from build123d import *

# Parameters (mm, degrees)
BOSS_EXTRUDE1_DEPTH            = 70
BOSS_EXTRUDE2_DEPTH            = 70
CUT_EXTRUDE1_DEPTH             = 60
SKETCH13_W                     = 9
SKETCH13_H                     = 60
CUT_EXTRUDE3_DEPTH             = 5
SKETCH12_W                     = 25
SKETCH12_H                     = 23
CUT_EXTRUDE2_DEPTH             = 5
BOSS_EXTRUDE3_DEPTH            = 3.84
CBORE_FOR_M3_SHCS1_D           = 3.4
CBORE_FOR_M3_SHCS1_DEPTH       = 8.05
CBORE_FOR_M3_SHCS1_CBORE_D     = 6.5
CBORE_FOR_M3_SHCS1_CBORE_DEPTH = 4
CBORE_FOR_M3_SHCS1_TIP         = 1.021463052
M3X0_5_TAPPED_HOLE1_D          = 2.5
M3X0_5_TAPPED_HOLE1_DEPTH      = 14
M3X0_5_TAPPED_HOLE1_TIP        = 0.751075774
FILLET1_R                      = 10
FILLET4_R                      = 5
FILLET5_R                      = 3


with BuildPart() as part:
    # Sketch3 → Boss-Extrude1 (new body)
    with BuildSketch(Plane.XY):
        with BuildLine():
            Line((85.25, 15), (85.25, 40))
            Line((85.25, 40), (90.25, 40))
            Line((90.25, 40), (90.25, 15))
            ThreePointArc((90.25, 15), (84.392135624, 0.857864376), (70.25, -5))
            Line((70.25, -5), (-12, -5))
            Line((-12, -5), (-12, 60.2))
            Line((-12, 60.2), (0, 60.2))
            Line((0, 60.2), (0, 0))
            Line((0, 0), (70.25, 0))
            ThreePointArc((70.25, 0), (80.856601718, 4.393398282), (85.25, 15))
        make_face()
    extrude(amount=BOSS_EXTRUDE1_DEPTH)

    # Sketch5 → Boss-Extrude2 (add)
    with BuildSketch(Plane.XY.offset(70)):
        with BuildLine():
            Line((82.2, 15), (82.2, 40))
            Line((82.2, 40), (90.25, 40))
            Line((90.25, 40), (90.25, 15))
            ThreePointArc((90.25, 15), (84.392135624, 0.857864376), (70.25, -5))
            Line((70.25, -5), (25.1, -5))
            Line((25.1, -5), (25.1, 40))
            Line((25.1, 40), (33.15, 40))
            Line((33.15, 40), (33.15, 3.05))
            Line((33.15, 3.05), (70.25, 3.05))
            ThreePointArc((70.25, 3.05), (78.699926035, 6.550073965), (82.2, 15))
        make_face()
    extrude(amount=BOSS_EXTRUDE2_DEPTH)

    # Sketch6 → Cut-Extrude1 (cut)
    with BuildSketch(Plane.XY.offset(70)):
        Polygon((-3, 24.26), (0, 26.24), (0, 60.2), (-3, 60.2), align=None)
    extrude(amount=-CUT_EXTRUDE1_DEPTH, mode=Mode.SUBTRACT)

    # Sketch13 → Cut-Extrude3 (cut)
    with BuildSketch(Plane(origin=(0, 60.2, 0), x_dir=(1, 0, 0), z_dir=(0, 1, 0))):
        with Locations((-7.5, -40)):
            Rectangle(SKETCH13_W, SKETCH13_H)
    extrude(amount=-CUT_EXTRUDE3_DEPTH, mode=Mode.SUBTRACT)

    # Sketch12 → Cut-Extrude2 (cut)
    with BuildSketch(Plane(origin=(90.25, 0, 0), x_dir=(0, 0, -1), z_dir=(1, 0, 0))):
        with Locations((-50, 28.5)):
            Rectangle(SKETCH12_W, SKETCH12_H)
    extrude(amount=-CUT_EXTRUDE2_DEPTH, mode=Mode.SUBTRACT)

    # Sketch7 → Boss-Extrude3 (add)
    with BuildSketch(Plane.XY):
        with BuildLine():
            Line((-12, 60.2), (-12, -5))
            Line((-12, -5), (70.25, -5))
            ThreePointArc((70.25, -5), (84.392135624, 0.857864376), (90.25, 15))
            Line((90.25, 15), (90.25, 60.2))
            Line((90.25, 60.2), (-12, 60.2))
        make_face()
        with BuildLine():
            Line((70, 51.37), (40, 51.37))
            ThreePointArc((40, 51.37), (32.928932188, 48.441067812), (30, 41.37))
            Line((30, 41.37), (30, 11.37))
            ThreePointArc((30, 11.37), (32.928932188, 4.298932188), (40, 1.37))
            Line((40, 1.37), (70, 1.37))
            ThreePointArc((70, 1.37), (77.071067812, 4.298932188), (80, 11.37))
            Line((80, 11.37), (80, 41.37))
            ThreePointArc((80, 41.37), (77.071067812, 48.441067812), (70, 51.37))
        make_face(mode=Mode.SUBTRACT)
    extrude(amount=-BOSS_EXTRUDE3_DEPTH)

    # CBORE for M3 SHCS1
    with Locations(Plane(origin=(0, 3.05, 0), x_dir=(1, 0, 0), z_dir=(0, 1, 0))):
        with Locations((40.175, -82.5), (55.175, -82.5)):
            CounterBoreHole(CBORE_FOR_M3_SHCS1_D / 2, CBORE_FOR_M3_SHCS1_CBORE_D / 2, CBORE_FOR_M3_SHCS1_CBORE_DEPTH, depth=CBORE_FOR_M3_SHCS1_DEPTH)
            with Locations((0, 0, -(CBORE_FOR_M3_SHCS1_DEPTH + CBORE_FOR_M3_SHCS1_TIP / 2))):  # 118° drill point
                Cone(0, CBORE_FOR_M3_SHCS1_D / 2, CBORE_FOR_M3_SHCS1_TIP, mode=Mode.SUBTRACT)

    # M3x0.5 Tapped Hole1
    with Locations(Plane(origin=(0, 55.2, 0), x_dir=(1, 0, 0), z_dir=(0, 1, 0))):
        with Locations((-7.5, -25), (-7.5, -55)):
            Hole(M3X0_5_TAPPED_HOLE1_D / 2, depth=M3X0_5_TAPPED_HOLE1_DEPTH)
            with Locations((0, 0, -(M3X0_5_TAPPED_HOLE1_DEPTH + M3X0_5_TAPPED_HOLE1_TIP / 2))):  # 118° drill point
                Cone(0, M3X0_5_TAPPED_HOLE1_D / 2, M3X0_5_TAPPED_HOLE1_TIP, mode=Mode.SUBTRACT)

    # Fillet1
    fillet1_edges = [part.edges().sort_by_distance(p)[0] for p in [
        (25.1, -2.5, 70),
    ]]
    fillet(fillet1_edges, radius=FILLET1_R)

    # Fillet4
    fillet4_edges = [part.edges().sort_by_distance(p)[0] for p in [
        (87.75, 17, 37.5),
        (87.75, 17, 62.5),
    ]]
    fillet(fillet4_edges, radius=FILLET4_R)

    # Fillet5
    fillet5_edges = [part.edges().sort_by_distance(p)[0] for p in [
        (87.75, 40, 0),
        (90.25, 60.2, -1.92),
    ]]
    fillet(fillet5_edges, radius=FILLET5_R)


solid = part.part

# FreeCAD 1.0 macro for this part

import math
import FreeCAD as App
import Part
import Sketcher


def edges_at(feature, points):
    """Names of the edges that pass closest to the given points."""
    edges = feature.Shape.Edges
    near = lambda p: min(range(len(edges)), key=lambda i: edges[i].distToShape(Part.Vertex(*p))[0])
    return sorted({f"Edge{near(p) + 1}" for p in points})


def add_polygon(sketch, points):
    """Adds a closed chain of lines whose ends are joined by coincident constraints."""
    first, n = sketch.GeometryCount, len(points)
    for a, b in zip(points, points[1:] + points[:1]):
        sketch.addGeometry(Part.LineSegment(App.Vector(*a, 0), App.Vector(*b, 0)), False)
    for i in range(n):
        sketch.addConstraint(Sketcher.Constraint("Coincident", first + i, 2, first + (i + 1) % n, 1))

doc = App.newDocument("Part")
body = doc.addObject("PartDesign::Body", "Body")

# Sketch on XY plane
sketch1 = body.newObject("Sketcher::SketchObject", "Sketch")
sketch1.AttachmentSupport = (doc.getObject("XY_Plane"), [""])
sketch1.MapMode = "FlatFace"
sketch1.addGeometry([
    Part.LineSegment(App.Vector(85.25, 40, 0), App.Vector(85.25, 15, 0)),  # 0
    Part.ArcOfCircle(Part.Circle(App.Vector(70.25, 15, 0), App.Vector(0, 0, 1), 15), math.radians(-90), math.radians(0)),  # 1
    Part.LineSegment(App.Vector(70.25, 0, 0), App.Vector(0, 0, 0)),  # 2
    Part.LineSegment(App.Vector(0, 0, 0), App.Vector(0, 60.2, 0)),  # 3
    Part.LineSegment(App.Vector(0, 60.2, 0), App.Vector(-12, 60.2, 0)),  # 4
    Part.LineSegment(App.Vector(-12, 60.2, 0), App.Vector(-12, -5, 0)),  # 5
    Part.LineSegment(App.Vector(-12, -5, 0), App.Vector(70.25, -5, 0)),  # 6
    Part.ArcOfCircle(Part.Circle(App.Vector(70.25, 15, 0), App.Vector(0, 0, 1), 20), math.radians(-90), math.radians(0)),  # 7
    Part.LineSegment(App.Vector(90.25, 15, 0), App.Vector(90.25, 40, 0)),  # 8
    Part.LineSegment(App.Vector(90.25, 40, 0), App.Vector(85.25, 40, 0)),  # 9
], False)
sketch1.addConstraint([
    Sketcher.Constraint("Tangent", 0, 2, 1, 2),
    Sketcher.Constraint("Tangent", 1, 1, 2, 1),
    Sketcher.Constraint("Coincident", 2, 2, 3, 1),
    Sketcher.Constraint("Coincident", 3, 2, 4, 1),
    Sketcher.Constraint("Coincident", 4, 2, 5, 1),
    Sketcher.Constraint("Coincident", 5, 2, 6, 1),
    Sketcher.Constraint("Tangent", 6, 2, 7, 1),
    Sketcher.Constraint("Tangent", 7, 2, 8, 1),
    Sketcher.Constraint("Coincident", 8, 2, 9, 1),
    Sketcher.Constraint("Coincident", 9, 2, 0, 1),
    Sketcher.Constraint("Vertical", 0),
    Sketcher.Constraint("Horizontal", 2),
    Sketcher.Constraint("Vertical", 3),
    Sketcher.Constraint("Horizontal", 4),
    Sketcher.Constraint("Vertical", 5),
    Sketcher.Constraint("Horizontal", 6),
    Sketcher.Constraint("Vertical", 8),
    Sketcher.Constraint("Horizontal", 9),
    Sketcher.Constraint("Coincident", 2, 2, -1, 1),
    Sketcher.Constraint("Coincident", 7, 3, 1, 3),
    Sketcher.Constraint("Radius", 1, 15.0),
    Sketcher.Constraint("Radius", 7, 20.0),
    Sketcher.Constraint("DistanceX", 4, 2, 4, 1, 12.0),
    Sketcher.Constraint("DistanceY", 0, 2, 0, 1, 25.0),
    Sketcher.Constraint("DistanceY", 3, 1, 3, 2, 60.2),
    Sketcher.Constraint("DistanceX", 2, 2, 2, 1, 70.25),
])
pad1 = body.newObject("PartDesign::Pad", "Pad")
pad1.Profile = sketch1
pad1.Length = 70

# Sketch on XY plane
sketch2 = body.newObject("Sketcher::SketchObject", "Sketch001")
sketch2.AttachmentSupport = (doc.getObject("XY_Plane"), [""])
sketch2.MapMode = "FlatFace"
sketch2.AttachmentOffset = App.Placement(App.Vector(0, 0, 70), App.Rotation())
sketch2.addGeometry([
    Part.LineSegment(App.Vector(82.2, 40, 0), App.Vector(82.2, 15, 0)),  # 0
    Part.ArcOfCircle(Part.Circle(App.Vector(70.25, 15, 0), App.Vector(0, 0, 1), 11.95), math.radians(-90), math.radians(0)),  # 1
    Part.LineSegment(App.Vector(70.25, 3.05, 0), App.Vector(33.15, 3.05, 0)),  # 2
    Part.LineSegment(App.Vector(33.15, 3.05, 0), App.Vector(33.15, 40, 0)),  # 3
    Part.LineSegment(App.Vector(33.15, 40, 0), App.Vector(25.1, 40, 0)),  # 4
    Part.LineSegment(App.Vector(25.1, 40, 0), App.Vector(25.1, -5, 0)),  # 5
    Part.LineSegment(App.Vector(25.1, -5, 0), App.Vector(70.25, -5, 0)),  # 6
    Part.ArcOfCircle(Part.Circle(App.Vector(70.25, 15, 0), App.Vector(0, 0, 1), 20), math.radians(-90), math.radians(0)),  # 7
    Part.LineSegment(App.Vector(90.25, 15, 0), App.Vector(90.25, 40, 0)),  # 8
    Part.LineSegment(App.Vector(90.25, 40, 0), App.Vector(82.2, 40, 0)),  # 9
], False)
sketch2.addConstraint([
    Sketcher.Constraint("Tangent", 0, 2, 1, 2),
    Sketcher.Constraint("Tangent", 1, 1, 2, 1),
    Sketcher.Constraint("Coincident", 2, 2, 3, 1),
    Sketcher.Constraint("Coincident", 3, 2, 4, 1),
    Sketcher.Constraint("Coincident", 4, 2, 5, 1),
    Sketcher.Constraint("Coincident", 5, 2, 6, 1),
    Sketcher.Constraint("Tangent", 6, 2, 7, 1),
    Sketcher.Constraint("Tangent", 7, 2, 8, 1),
    Sketcher.Constraint("Coincident", 8, 2, 9, 1),
    Sketcher.Constraint("Coincident", 9, 2, 0, 1),
    Sketcher.Constraint("Vertical", 0),
    Sketcher.Constraint("Horizontal", 2),
    Sketcher.Constraint("Vertical", 3),
    Sketcher.Constraint("Horizontal", 4),
    Sketcher.Constraint("Vertical", 5),
    Sketcher.Constraint("Horizontal", 6),
    Sketcher.Constraint("Vertical", 8),
    Sketcher.Constraint("Horizontal", 9),
    Sketcher.Constraint("Coincident", 7, 3, 1, 3),
    Sketcher.Constraint("Horizontal", 4, 2, 8, 2),
    Sketcher.Constraint("Equal", 4, 9),
    Sketcher.Constraint("Radius", 7, 20.0),
    Sketcher.Constraint("DistanceY", 0, 2, 0, 1, 25.0),
    Sketcher.Constraint("Radius", 1, 11.95),
    Sketcher.Constraint("DistanceX", 2, 2, 2, 1, 37.1),
    Sketcher.Constraint("DistanceY", -1, 1, 1, 3, 15.0),
    Sketcher.Constraint("DistanceX", -1, 1, 0, 2, 82.2),
])
pad2 = body.newObject("PartDesign::Pad", "Pad001")
pad2.Profile = sketch2
pad2.Length = 70

# Sketch on XY plane
sketch3 = body.newObject("Sketcher::SketchObject", "Sketch002")
sketch3.AttachmentSupport = (doc.getObject("XY_Plane"), [""])
sketch3.MapMode = "FlatFace"
sketch3.AttachmentOffset = App.Placement(App.Vector(0, 0, 70), App.Rotation())
add_polygon(sketch3, [(-3, 24.26), (0, 26.24), (0, 60.2), (-3, 60.2)])  # lines 0-3
sketch3.addConstraint([
    Sketcher.Constraint("Vertical", 1),
    Sketcher.Constraint("Horizontal", 2),
    Sketcher.Constraint("Vertical", 3),
    Sketcher.Constraint("PointOnObject", 0, 2, -2),
    Sketcher.Constraint("DistanceX", 2, 2, 2, 1, 3.0),
    Sketcher.Constraint("DistanceY", 1, 1, 1, 2, 33.96),
    Sketcher.Constraint("DistanceY", 3, 2, 3, 1, 35.94),
    Sketcher.Constraint("DistanceY", -1, 1, 1, 2, 60.2),
])
pocket1 = body.newObject("PartDesign::Pocket", "Pocket")
pocket1.Profile = sketch3
pocket1.Length = 60

# Sketch on XZ plane
sketch4 = body.newObject("Sketcher::SketchObject", "Sketch003")
sketch4.AttachmentSupport = (doc.getObject("XZ_Plane"), [""])
sketch4.MapMode = "FlatFace"
sketch4.AttachmentOffset = App.Placement(App.Vector(0, 0, -60.2), App.Rotation())
add_polygon(sketch4, [(-12, 10), (-12, 70), (-3, 70), (-3, 10)])  # lines 0-3
sketch4.addConstraint([
    Sketcher.Constraint("Vertical", 0),
    Sketcher.Constraint("Horizontal", 1),
    Sketcher.Constraint("Vertical", 2),
    Sketcher.Constraint("Horizontal", 3),
    Sketcher.Constraint("DistanceX", 1, 1, 1, 2, 9.0),
    Sketcher.Constraint("DistanceY", 0, 1, 0, 2, 60.0),
    Sketcher.Constraint("DistanceX", 0, 2, -1, 1, 12.0),
    Sketcher.Constraint("DistanceY", -1, 1, 0, 2, 70.0),
])
pocket2 = body.newObject("PartDesign::Pocket", "Pocket001")
pocket2.Profile = sketch4
pocket2.Length = 5
pocket2.Reversed = True

# Sketch on YZ plane
sketch5 = body.newObject("Sketcher::SketchObject", "Sketch004")
sketch5.AttachmentSupport = (doc.getObject("YZ_Plane"), [""])
sketch5.MapMode = "FlatFace"
sketch5.AttachmentOffset = App.Placement(App.Vector(0, 0, 90.25), App.Rotation())
add_polygon(sketch5, [(40, 62.5), (17, 62.5), (17, 37.5), (40, 37.5)])  # lines 0-3
sketch5.addConstraint([
    Sketcher.Constraint("Horizontal", 0),
    Sketcher.Constraint("Vertical", 1),
    Sketcher.Constraint("Horizontal", 2),
    Sketcher.Constraint("Vertical", 3),
    Sketcher.Constraint("DistanceX", 0, 2, 0, 1, 23.0),
    Sketcher.Constraint("DistanceY", 1, 2, 1, 1, 25.0),
    Sketcher.Constraint("DistanceX", -1, 1, 0, 2, 17.0),
    Sketcher.Constraint("DistanceY", -1, 1, 0, 2, 62.5),
])
pocket3 = body.newObject("PartDesign::Pocket", "Pocket002")
pocket3.Profile = sketch5
pocket3.Length = 5

# Sketch on XY plane
sketch6 = body.newObject("Sketcher::SketchObject", "Sketch005")
sketch6.AttachmentSupport = (doc.getObject("XY_Plane"), [""])
sketch6.MapMode = "FlatFace"
sketch6.addGeometry([
    Part.LineSegment(App.Vector(-12, 60.2, 0), App.Vector(-12, -5, 0)),  # 0
    Part.LineSegment(App.Vector(-12, -5, 0), App.Vector(70.25, -5, 0)),  # 1
    Part.ArcOfCircle(Part.Circle(App.Vector(70.25, 15, 0), App.Vector(0, 0, 1), 20), math.radians(-90), math.radians(0)),  # 2
    Part.LineSegment(App.Vector(90.25, 15, 0), App.Vector(90.25, 60.2, 0)),  # 3
    Part.LineSegment(App.Vector(90.25, 60.2, 0), App.Vector(-12, 60.2, 0)),  # 4
    Part.LineSegment(App.Vector(40, 51.37, 0), App.Vector(70, 51.37, 0)),  # 5
    Part.ArcOfCircle(Part.Circle(App.Vector(70, 41.37, 0), App.Vector(0, 0, 1), 10), math.radians(0), math.radians(90)),  # 6
    Part.LineSegment(App.Vector(80, 41.37, 0), App.Vector(80, 11.37, 0)),  # 7
    Part.ArcOfCircle(Part.Circle(App.Vector(70, 11.37, 0), App.Vector(0, 0, 1), 10), math.radians(-90), math.radians(0)),  # 8
    Part.LineSegment(App.Vector(70, 1.37, 0), App.Vector(40, 1.37, 0)),  # 9
    Part.ArcOfCircle(Part.Circle(App.Vector(40, 11.37, 0), App.Vector(0, 0, 1), 10), math.radians(180), math.radians(270)),  # 10
    Part.LineSegment(App.Vector(30, 11.37, 0), App.Vector(30, 41.37, 0)),  # 11
    Part.ArcOfCircle(Part.Circle(App.Vector(40, 41.37, 0), App.Vector(0, 0, 1), 10), math.radians(90), math.radians(180)),  # 12
], False)
sketch6.addConstraint([
    Sketcher.Constraint("Coincident", 0, 2, 1, 1),
    Sketcher.Constraint("Tangent", 1, 2, 2, 1),
    Sketcher.Constraint("Tangent", 2, 2, 3, 1),
    Sketcher.Constraint("Coincident", 3, 2, 4, 1),
    Sketcher.Constraint("Coincident", 4, 2, 0, 1),
    Sketcher.Constraint("Tangent", 5, 2, 6, 2),
    Sketcher.Constraint("Tangent", 6, 1, 7, 1),
    Sketcher.Constraint("Tangent", 7, 2, 8, 2),
    Sketcher.Constraint("Tangent", 8, 1, 9, 1),
    Sketcher.Constraint("Tangent", 9, 2, 10, 2),
    Sketcher.Constraint("Tangent", 10, 1, 11, 1),
    Sketcher.Constraint("Tangent", 11, 2, 12, 2),
    Sketcher.Constraint("Tangent", 12, 1, 5, 1),
    Sketcher.Constraint("Vertical", 0),
    Sketcher.Constraint("Horizontal", 1),
    Sketcher.Constraint("Vertical", 3),
    Sketcher.Constraint("Horizontal", 4),
    Sketcher.Constraint("Horizontal", 5),
    Sketcher.Constraint("Vertical", 7),
    Sketcher.Constraint("Horizontal", 9),
    Sketcher.Constraint("Vertical", 11),
    Sketcher.Constraint("Equal", 6, 8),
    Sketcher.Constraint("Equal", 8, 10),
    Sketcher.Constraint("Equal", 10, 12),
    Sketcher.Constraint("Equal", 9, 7),
    Sketcher.Constraint("Radius", 2, 20.0),
    Sketcher.Constraint("Radius", 6, 10.0),
    Sketcher.Constraint("DistanceX", 5, 1, 5, 2, 30.0),
    Sketcher.Constraint("DistanceY", 0, 2, 0, 1, 65.2),
    Sketcher.Constraint("DistanceY", -1, 1, 2, 3, 15.0),
    Sketcher.Constraint("DistanceX", -1, 1, 6, 3, 70.0),
    Sketcher.Constraint("DistanceX", 0, 2, -1, 1, 12.0),
    Sketcher.Constraint("DistanceX", 1, 1, 1, 2, 82.25),
    Sketcher.Constraint("DistanceY", -1, 1, 6, 3, 41.37),
])
pad3 = body.newObject("PartDesign::Pad", "Pad002")
pad3.Profile = sketch6
pad3.Length = 3.84
pad3.Reversed = True

# Sketch on XZ plane
sketch7 = body.newObject("Sketcher::SketchObject", "Sketch006")
sketch7.AttachmentSupport = (doc.getObject("XZ_Plane"), [""])
sketch7.MapMode = "FlatFace"
sketch7.AttachmentOffset = App.Placement(App.Vector(0, 0, -3.05), App.Rotation())
sketch7.addGeometry([
    Part.Circle(App.Vector(40.175, 82.5, 0), App.Vector(0, 0, 1), 1.7),
    Part.Circle(App.Vector(55.175, 82.5, 0), App.Vector(0, 0, 1), 1.7),
], False)
sketch7.addConstraint([
    Sketcher.Constraint("Equal", 0, 1),
    Sketcher.Constraint("Horizontal", 0, 3, 1, 3),
    Sketcher.Constraint("Diameter", 0, 3.4),
    Sketcher.Constraint("DistanceX", 0, 3, 1, 3, 15.0),
    Sketcher.Constraint("DistanceY", -1, 1, 0, 3, 82.5),
    Sketcher.Constraint("DistanceX", -1, 1, 0, 3, 40.175),
])
doc.recompute()
hole = body.newObject("PartDesign::Hole", "Hole")
hole.Profile = sketch7
hole.ThreadType = "None"
hole.Diameter = 3.4
hole.DepthType = "Dimension"
hole.Depth = 8.05
hole.DrillPoint = "Angled"
hole.DrillPointAngle = 118
hole.HoleCutType = "Counterbore"
hole.HoleCutDiameter = 6.5
hole.HoleCutDepth = 4
hole.Reversed = True

# Sketch on XZ plane
sketch8 = body.newObject("Sketcher::SketchObject", "Sketch007")
sketch8.AttachmentSupport = (doc.getObject("XZ_Plane"), [""])
sketch8.MapMode = "FlatFace"
sketch8.AttachmentOffset = App.Placement(App.Vector(0, 0, -55.2), App.Rotation())
sketch8.addGeometry([
    Part.Circle(App.Vector(-7.5, 25, 0), App.Vector(0, 0, 1), 1.25),
    Part.Circle(App.Vector(-7.5, 55, 0), App.Vector(0, 0, 1), 1.25),
], False)
sketch8.addConstraint([
    Sketcher.Constraint("Equal", 0, 1),
    Sketcher.Constraint("Vertical", 0, 3, 1, 3),
    Sketcher.Constraint("Diameter", 0, 2.5),
    Sketcher.Constraint("DistanceY", -1, 1, 0, 3, 25.0),
    Sketcher.Constraint("DistanceY", -1, 1, 1, 3, 55.0),
    Sketcher.Constraint("DistanceX", 0, 3, -1, 1, 7.5),
])
doc.recompute()
hole2 = body.newObject("PartDesign::Hole", "Hole001")
hole2.Profile = sketch8
hole2.ThreadType = "None"
hole2.Diameter = 2.5
hole2.DepthType = "Dimension"
hole2.Depth = 14
hole2.DrillPoint = "Angled"
hole2.DrillPointAngle = 118
hole2.Reversed = True
doc.recompute()

fillet = body.newObject("PartDesign::Fillet", "Fillet")
fillet.Base = (hole2, edges_at(hole2, [(25.1, -2.5, 70)]))
fillet.Radius = 10
doc.recompute()

fillet2 = body.newObject("PartDesign::Fillet", "Fillet001")
fillet2.Base = (fillet, edges_at(fillet, [(87.75, 17, 37.5), (87.75, 17, 62.5)]))
fillet2.Radius = 5
doc.recompute()

fillet3 = body.newObject("PartDesign::Fillet", "Fillet002")
fillet3.Base = (fillet2, edges_at(fillet2, [(87.75, 40, 0), (90.25, 60.2, -1.92)]))
fillet3.Radius = 3

doc.recompute()
